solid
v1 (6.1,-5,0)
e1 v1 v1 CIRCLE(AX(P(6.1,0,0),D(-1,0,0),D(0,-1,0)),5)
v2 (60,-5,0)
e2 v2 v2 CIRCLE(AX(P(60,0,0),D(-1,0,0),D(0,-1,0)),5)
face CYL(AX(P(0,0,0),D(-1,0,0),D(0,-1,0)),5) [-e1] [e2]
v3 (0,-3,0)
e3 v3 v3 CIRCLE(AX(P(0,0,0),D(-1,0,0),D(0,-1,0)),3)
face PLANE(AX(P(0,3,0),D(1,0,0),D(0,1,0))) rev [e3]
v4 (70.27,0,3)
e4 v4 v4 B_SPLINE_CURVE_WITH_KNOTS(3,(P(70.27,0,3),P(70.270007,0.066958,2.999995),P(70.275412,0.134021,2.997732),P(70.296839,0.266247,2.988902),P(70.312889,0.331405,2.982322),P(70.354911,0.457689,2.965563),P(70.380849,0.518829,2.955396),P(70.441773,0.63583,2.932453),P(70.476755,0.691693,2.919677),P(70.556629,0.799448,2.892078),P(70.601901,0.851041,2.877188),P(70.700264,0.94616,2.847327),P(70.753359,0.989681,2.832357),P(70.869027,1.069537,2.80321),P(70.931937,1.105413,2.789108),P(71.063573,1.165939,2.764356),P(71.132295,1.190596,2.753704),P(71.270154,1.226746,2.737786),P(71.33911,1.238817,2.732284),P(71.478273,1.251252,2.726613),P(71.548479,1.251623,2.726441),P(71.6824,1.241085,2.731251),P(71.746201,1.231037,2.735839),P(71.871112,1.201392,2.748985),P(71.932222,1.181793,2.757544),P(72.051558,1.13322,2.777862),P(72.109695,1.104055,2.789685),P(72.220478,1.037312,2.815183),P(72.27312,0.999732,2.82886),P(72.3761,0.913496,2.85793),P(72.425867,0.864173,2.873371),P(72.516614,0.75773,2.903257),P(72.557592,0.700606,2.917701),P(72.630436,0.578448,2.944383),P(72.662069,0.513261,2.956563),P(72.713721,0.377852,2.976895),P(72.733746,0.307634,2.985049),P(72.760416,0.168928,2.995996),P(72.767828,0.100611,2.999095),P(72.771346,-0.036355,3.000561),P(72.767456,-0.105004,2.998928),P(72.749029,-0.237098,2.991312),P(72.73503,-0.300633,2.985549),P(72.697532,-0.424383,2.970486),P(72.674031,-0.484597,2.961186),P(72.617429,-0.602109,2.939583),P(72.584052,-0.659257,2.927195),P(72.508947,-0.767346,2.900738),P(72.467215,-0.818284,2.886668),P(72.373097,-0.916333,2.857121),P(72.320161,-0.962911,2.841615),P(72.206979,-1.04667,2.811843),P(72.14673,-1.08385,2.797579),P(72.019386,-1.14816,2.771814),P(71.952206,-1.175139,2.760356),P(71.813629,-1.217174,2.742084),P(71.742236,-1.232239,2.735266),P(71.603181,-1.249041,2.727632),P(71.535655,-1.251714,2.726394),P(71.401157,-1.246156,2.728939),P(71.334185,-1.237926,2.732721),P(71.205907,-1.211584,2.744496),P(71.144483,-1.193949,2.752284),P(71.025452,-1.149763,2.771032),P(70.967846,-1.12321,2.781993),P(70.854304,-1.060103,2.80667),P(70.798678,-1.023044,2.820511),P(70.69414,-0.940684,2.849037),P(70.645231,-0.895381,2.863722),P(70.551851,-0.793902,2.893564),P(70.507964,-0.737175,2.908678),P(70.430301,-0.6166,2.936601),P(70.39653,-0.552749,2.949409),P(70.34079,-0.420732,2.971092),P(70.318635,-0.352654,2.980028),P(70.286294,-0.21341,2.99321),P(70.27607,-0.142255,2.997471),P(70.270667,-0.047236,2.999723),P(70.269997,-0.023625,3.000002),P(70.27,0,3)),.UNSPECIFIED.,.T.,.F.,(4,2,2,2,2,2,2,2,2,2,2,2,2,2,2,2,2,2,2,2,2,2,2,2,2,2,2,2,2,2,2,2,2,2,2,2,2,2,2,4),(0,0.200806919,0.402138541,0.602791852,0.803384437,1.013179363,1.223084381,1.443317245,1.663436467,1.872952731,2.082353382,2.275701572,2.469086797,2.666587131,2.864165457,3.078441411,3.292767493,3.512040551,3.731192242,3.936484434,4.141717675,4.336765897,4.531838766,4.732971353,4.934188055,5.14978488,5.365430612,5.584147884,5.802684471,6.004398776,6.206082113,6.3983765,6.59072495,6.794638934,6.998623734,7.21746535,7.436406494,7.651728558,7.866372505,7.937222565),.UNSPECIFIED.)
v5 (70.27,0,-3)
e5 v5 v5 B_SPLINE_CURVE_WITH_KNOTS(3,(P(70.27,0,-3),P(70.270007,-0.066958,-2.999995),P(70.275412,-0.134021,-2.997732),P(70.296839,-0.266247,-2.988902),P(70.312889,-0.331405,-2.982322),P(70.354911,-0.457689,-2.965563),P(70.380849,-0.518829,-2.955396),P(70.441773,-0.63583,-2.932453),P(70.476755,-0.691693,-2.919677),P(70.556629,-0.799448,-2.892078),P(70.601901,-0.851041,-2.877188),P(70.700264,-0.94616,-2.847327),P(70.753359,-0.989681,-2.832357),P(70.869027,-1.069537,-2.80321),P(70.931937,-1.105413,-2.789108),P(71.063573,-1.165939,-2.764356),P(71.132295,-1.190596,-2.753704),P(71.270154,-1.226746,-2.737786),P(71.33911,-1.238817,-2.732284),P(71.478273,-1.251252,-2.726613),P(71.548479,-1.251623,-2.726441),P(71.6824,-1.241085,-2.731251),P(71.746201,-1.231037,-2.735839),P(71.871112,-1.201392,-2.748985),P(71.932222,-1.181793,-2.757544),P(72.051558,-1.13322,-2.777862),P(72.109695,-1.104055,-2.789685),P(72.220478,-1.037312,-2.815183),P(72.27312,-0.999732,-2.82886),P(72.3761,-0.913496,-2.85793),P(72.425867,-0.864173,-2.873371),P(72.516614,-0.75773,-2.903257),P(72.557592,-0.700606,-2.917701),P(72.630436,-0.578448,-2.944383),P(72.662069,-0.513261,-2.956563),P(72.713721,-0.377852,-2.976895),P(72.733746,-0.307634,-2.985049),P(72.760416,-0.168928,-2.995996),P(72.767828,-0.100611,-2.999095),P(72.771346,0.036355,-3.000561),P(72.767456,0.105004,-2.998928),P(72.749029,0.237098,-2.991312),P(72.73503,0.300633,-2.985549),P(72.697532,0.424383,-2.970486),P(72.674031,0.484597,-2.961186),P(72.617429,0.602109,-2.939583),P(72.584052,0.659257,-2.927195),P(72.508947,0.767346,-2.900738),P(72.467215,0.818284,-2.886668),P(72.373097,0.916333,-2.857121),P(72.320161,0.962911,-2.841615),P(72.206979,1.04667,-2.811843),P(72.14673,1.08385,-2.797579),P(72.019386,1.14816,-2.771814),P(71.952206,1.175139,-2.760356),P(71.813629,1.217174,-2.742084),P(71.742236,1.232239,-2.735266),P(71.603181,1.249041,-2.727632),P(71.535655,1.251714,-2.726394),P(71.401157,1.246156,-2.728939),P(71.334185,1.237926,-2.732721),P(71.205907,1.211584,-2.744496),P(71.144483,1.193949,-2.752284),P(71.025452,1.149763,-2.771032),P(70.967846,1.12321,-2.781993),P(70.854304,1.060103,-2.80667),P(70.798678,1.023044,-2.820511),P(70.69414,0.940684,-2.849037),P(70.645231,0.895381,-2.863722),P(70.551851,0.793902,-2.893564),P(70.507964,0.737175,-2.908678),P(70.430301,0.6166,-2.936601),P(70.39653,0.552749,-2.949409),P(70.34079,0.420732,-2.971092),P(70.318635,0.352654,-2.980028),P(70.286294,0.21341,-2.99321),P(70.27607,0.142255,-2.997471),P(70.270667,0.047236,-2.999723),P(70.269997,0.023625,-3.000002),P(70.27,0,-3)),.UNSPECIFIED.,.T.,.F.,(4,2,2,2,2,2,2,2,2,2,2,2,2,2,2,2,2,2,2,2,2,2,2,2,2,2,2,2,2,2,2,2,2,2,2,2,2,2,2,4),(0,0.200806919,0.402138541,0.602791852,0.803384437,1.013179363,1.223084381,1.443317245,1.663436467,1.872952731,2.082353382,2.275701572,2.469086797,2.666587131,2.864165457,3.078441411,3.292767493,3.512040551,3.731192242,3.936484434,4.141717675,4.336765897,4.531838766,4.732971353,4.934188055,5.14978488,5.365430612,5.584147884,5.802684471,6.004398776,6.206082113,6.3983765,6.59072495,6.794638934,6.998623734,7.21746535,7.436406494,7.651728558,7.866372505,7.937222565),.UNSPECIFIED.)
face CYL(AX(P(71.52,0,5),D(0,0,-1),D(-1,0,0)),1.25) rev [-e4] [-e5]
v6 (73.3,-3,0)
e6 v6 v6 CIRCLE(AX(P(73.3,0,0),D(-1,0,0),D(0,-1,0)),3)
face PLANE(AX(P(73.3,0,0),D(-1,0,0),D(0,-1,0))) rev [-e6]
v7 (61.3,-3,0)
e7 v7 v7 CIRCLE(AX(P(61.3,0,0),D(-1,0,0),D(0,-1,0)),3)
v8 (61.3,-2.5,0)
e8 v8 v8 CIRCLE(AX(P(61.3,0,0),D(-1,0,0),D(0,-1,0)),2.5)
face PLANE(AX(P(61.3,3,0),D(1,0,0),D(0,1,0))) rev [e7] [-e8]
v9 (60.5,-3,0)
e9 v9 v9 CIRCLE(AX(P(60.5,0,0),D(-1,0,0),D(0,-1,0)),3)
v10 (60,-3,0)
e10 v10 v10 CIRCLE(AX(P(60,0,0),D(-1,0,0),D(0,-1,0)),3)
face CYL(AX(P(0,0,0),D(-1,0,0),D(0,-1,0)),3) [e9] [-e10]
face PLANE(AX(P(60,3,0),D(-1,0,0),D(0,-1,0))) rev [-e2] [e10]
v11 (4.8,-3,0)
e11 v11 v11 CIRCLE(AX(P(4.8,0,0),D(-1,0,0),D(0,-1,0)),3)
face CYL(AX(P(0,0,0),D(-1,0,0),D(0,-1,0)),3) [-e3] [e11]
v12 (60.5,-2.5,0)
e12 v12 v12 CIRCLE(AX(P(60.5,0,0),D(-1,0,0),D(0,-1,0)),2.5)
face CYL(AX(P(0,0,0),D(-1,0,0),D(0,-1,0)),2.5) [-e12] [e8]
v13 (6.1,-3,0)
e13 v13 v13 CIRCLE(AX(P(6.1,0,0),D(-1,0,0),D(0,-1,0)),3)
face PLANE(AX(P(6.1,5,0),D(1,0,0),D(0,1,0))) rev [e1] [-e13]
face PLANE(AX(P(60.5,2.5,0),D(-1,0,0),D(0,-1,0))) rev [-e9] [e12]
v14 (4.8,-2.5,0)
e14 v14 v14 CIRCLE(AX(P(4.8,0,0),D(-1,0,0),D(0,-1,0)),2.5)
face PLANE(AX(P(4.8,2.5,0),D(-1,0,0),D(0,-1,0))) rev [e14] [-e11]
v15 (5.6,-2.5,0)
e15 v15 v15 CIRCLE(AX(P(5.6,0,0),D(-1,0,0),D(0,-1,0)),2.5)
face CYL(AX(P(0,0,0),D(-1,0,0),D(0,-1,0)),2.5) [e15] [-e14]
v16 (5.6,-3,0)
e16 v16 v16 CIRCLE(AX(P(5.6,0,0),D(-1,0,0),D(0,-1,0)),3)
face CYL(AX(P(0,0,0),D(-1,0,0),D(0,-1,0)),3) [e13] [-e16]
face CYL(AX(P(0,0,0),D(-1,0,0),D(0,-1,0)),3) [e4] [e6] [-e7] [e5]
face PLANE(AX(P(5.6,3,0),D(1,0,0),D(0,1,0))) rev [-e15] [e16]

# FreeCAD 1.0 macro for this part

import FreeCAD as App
import Part
import Sketcher
from FreeCAD import Vector
Q = App.Units.Quantity

doc = App.newDocument("Part")
body = doc.addObject("PartDesign::Body", "Body")

sketch1 = doc.addObject("Sketcher::SketchObject", "Sketch")
body.addObject(sketch1)
sketch1.AttachmentSupport = (doc.XY_Plane, [""])
sketch1.MapMode = "FlatFace"
sketch1.addGeometry(Part.LineSegment(Vector(0, 0, 0), Vector(73.3, 0, 0)), False)
sketch1.addGeometry(Part.LineSegment(Vector(73.3, 0, 0), Vector(73.3, 3, 0)), False)
sketch1.addGeometry(Part.LineSegment(Vector(73.3, 3, 0), Vector(61.3, 3, 0)), False)
sketch1.addGeometry(Part.LineSegment(Vector(61.3, 3, 0), Vector(61.3, 2.5, 0)), False)
sketch1.addGeometry(Part.LineSegment(Vector(61.3, 2.5, 0), Vector(60.5, 2.5, 0)), False)
sketch1.addGeometry(Part.LineSegment(Vector(60.5, 2.5, 0), Vector(60.5, 3, 0)), False)
sketch1.addGeometry(Part.LineSegment(Vector(60.5, 3, 0), Vector(60, 3, 0)), False)
sketch1.addGeometry(Part.LineSegment(Vector(60, 3, 0), Vector(60, 5, 0)), False)
sketch1.addGeometry(Part.LineSegment(Vector(60, 5, 0), Vector(6.1, 5, 0)), False)
sketch1.addGeometry(Part.LineSegment(Vector(6.1, 5, 0), Vector(6.1, 3, 0)), False)
sketch1.addGeometry(Part.LineSegment(Vector(6.1, 3, 0), Vector(5.6, 3, 0)), False)
sketch1.addGeometry(Part.LineSegment(Vector(5.6, 3, 0), Vector(5.6, 2.5, 0)), False)
sketch1.addGeometry(Part.LineSegment(Vector(5.6, 2.5, 0), Vector(4.8, 2.5, 0)), False)
sketch1.addGeometry(Part.LineSegment(Vector(4.8, 2.5, 0), Vector(4.8, 3, 0)), False)
sketch1.addGeometry(Part.LineSegment(Vector(4.8, 3, 0), Vector(0, 3, 0)), False)
sketch1.addGeometry(Part.LineSegment(Vector(0, 3, 0), Vector(0, 0, 0)), False)
sketch1.addConstraint(Sketcher.Constraint("Coincident", 0, 2, 1, 1))
sketch1.addConstraint(Sketcher.Constraint("Coincident", 1, 2, 2, 1))
sketch1.addConstraint(Sketcher.Constraint("Coincident", 2, 2, 3, 1))
sketch1.addConstraint(Sketcher.Constraint("Coincident", 3, 2, 4, 1))
sketch1.addConstraint(Sketcher.Constraint("Coincident", 4, 2, 5, 1))
sketch1.addConstraint(Sketcher.Constraint("Coincident", 5, 2, 6, 1))
sketch1.addConstraint(Sketcher.Constraint("Coincident", 6, 2, 7, 1))
sketch1.addConstraint(Sketcher.Constraint("Coincident", 7, 2, 8, 1))
sketch1.addConstraint(Sketcher.Constraint("Coincident", 8, 2, 9, 1))
sketch1.addConstraint(Sketcher.Constraint("Coincident", 9, 2, 10, 1))
sketch1.addConstraint(Sketcher.Constraint("Coincident", 10, 2, 11, 1))
sketch1.addConstraint(Sketcher.Constraint("Coincident", 11, 2, 12, 1))
sketch1.addConstraint(Sketcher.Constraint("Coincident", 12, 2, 13, 1))
sketch1.addConstraint(Sketcher.Constraint("Coincident", 13, 2, 14, 1))
sketch1.addConstraint(Sketcher.Constraint("Coincident", 14, 2, 15, 1))
sketch1.addConstraint(Sketcher.Constraint("Coincident", 15, 2, 0, 1))
sketch1.addConstraint(Sketcher.Constraint("Horizontal", 0))
sketch1.addConstraint(Sketcher.Constraint("Vertical", 1))
sketch1.addConstraint(Sketcher.Constraint("Horizontal", 2))
sketch1.addConstraint(Sketcher.Constraint("Vertical", 3))
sketch1.addConstraint(Sketcher.Constraint("Horizontal", 4))
sketch1.addConstraint(Sketcher.Constraint("Vertical", 5))
sketch1.addConstraint(Sketcher.Constraint("Horizontal", 6))
sketch1.addConstraint(Sketcher.Constraint("Vertical", 7))
sketch1.addConstraint(Sketcher.Constraint("Horizontal", 8))
sketch1.addConstraint(Sketcher.Constraint("Vertical", 9))
sketch1.addConstraint(Sketcher.Constraint("Horizontal", 10))
sketch1.addConstraint(Sketcher.Constraint("Vertical", 11))
sketch1.addConstraint(Sketcher.Constraint("Horizontal", 12))
sketch1.addConstraint(Sketcher.Constraint("Vertical", 13))
sketch1.addConstraint(Sketcher.Constraint("Horizontal", 14))
sketch1.addConstraint(Sketcher.Constraint("Vertical", 15))
sketch1.addConstraint(Sketcher.Constraint("Coincident", 15, 2, -1, 1))
sketch1.addConstraint(Sketcher.Constraint("Horizontal", 2, 2, 5, 2))
sketch1.addConstraint(Sketcher.Constraint("Horizontal", 6, 2, 9, 2))
sketch1.addConstraint(Sketcher.Constraint("Horizontal", 4, 2, 11, 2))
sketch1.addConstraint(Sketcher.Constraint("Horizontal", 10, 2, 13, 2))
sketch1.addConstraint(Sketcher.Constraint("Equal", 6, 10))
sketch1.addConstraint(Sketcher.Constraint("Equal", 4, 12))
sketch1.addConstraint(Sketcher.Constraint("Equal", 10, 3))
sketch1.addConstraint(Sketcher.Constraint("DistanceX", 2, 2, 2, 1, Q("12 mm")))
sketch1.addConstraint(Sketcher.Constraint("DistanceY", 1, 1, 1, 2, Q("3 mm")))
sketch1.addConstraint(Sketcher.Constraint("DistanceY", 7, 1, 7, 2, Q("2 mm")))
sketch1.addConstraint(Sketcher.Constraint("DistanceX", 0, 1, 0, 2, Q("73.3 mm")))
sketch1.addConstraint(Sketcher.Constraint("DistanceX", 4, 2, 4, 1, Q("0.8 mm")))
sketch1.addConstraint(Sketcher.Constraint("DistanceX", 6, 2, 6, 1, Q("0.5 mm")))
sketch1.addConstraint(Sketcher.Constraint("DistanceX", 8, 2, 8, 1, Q("53.9 mm")))
revolution = doc.addObject("PartDesign::Revolution", "Revolution")
body.addObject(revolution)
revolution.Profile = sketch1
revolution.ReferenceAxis = (sketch1, ["H_Axis"])
revolution.Angle = 360

sketch2 = doc.addObject("Sketcher::SketchObject", "Sketch001")
body.addObject(sketch2)
sketch2.AttachmentSupport = (doc.XY_Plane, [""])
sketch2.MapMode = "FlatFace"
sketch2.addGeometry(Part.Circle(Vector(71.5, 0, 0), Vector(0, 0, 1), 1.2), False)
sketch2.addConstraint(Sketcher.Constraint("PointOnObject", 0, 3, -1))
sketch2.addConstraint(Sketcher.Constraint("Diameter", 0, Q("2.5 mm")))
sketch2.addConstraint(Sketcher.Constraint("DistanceX", -1, 1, 0, 3, Q("71.52 mm")))
pocket1 = doc.addObject("PartDesign::Pocket", "Pocket")
body.addObject(pocket1)
pocket1.Profile = sketch2
pocket1.Length = 10
pocket1.Midplane = True

doc.recompute()
